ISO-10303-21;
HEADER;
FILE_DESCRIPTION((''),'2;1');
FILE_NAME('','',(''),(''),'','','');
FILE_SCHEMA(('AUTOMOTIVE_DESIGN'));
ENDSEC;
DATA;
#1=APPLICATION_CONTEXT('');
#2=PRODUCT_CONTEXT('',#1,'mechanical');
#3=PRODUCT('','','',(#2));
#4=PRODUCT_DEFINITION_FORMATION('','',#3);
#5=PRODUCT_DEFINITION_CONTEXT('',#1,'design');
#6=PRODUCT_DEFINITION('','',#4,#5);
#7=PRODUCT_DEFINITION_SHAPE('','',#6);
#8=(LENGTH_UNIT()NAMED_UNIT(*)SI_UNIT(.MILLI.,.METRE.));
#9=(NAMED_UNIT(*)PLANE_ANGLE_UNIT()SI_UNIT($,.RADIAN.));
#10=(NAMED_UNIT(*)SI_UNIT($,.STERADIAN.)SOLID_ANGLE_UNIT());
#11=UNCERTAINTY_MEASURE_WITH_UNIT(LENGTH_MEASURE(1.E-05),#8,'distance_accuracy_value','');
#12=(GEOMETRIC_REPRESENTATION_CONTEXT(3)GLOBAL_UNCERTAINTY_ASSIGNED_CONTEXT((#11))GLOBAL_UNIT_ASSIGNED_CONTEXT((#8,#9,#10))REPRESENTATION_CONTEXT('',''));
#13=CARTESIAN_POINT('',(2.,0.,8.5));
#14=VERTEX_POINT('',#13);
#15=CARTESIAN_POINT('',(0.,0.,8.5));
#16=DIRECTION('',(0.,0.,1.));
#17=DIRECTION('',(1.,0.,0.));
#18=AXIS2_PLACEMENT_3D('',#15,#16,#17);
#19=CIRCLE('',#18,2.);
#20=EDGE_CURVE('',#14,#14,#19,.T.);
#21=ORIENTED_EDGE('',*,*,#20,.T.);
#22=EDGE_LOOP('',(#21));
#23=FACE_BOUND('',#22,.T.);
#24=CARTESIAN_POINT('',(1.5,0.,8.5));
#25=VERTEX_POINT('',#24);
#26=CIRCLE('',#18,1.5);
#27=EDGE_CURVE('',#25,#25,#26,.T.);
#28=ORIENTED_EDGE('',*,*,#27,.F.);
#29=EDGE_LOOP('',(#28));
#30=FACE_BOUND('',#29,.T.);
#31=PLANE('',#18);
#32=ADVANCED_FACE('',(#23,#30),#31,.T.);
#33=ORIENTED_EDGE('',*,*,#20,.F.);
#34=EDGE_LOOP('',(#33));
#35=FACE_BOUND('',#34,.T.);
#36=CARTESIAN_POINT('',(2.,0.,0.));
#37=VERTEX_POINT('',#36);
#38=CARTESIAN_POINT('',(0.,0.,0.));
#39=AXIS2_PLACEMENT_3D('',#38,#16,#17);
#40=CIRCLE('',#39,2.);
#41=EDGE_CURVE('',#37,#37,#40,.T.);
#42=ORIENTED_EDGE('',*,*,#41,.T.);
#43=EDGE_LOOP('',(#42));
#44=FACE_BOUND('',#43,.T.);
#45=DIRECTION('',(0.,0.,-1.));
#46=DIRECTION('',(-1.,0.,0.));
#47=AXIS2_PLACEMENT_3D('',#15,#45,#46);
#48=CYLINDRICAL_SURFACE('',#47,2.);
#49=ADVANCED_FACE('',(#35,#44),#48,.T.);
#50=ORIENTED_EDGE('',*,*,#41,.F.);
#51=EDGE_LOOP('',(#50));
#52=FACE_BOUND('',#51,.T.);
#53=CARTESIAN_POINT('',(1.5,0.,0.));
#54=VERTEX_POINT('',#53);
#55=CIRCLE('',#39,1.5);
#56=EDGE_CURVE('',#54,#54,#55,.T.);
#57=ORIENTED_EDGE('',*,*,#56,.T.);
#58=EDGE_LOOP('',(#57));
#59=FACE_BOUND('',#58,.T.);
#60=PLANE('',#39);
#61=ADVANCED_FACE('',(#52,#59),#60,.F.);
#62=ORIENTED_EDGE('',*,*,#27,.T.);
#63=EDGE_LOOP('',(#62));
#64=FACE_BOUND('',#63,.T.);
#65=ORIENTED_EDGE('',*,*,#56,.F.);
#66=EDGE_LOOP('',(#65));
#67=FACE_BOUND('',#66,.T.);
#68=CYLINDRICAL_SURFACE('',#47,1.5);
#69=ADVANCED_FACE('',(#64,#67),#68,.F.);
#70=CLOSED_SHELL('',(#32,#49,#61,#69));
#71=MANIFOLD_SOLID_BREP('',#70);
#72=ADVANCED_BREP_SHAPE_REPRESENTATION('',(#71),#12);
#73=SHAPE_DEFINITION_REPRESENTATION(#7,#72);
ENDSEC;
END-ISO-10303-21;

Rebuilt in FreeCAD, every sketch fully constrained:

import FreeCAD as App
import Part
import Sketcher
from FreeCAD import Vector

doc = App.newDocument("Part")
body = doc.addObject("PartDesign::Body", "Body")

# Sketch on XY plane
sketch1 = body.newObject("Sketcher::SketchObject", "Sketch")
sketch1.AttachmentSupport = (doc.getObject("XY_Plane"), [""])
sketch1.MapMode = "FlatFace"
sketch1.addGeometry([
    Part.Circle(Vector(0, 0, 0), Vector(0, 0, 1), 2),
    Part.Circle(Vector(0, 0, 0), Vector(0, 0, 1), 1.5),
], False)
sketch1.addConstraint([
    Sketcher.Constraint("Coincident", 0, 3, -1, 1),
    Sketcher.Constraint("Coincident", 1, 3, -1, 1),
    Sketcher.Constraint("Diameter", 0, 4.0),
    Sketcher.Constraint("Diameter", 1, 3.0),
])
pad1 = body.newObject("PartDesign::Pad", "Pad")
pad1.Profile = sketch1
pad1.Length = 8.5

doc.recompute()
